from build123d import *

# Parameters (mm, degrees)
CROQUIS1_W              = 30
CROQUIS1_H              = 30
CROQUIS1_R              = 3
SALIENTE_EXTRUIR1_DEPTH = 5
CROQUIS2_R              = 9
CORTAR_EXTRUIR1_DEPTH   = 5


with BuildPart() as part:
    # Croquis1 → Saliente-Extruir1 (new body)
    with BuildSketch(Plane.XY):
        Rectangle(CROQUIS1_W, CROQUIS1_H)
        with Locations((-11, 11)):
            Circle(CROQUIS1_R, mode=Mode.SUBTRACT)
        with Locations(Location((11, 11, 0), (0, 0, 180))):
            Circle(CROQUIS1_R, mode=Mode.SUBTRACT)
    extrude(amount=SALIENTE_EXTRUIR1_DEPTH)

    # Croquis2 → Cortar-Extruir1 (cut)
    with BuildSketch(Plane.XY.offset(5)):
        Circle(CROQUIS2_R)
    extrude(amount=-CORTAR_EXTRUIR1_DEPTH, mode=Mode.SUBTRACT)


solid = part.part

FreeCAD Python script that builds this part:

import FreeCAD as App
import Part
import Sketcher
Q = App.Units.Quantity

doc = App.newDocument("Part")
body = doc.addObject("PartDesign::Body", "Body")

# Sketch on XY plane
sketch1 = body.newObject("Sketcher::SketchObject", "Sketch")
sketch1.AttachmentSupport = (doc.getObject("XY_Plane"), [""])
sketch1.MapMode = "FlatFace"
sketch1.addGeometry(Part.LineSegment(App.Vector(-15, 15, 0), App.Vector(-15, -15, 0)), False)
sketch1.addGeometry(Part.LineSegment(App.Vector(-15, -15, 0), App.Vector(15, -15, 0)), False)
sketch1.addGeometry(Part.LineSegment(App.Vector(15, -15, 0), App.Vector(15, 15, 0)), False)
sketch1.addGeometry(Part.LineSegment(App.Vector(15, 15, 0), App.Vector(-15, 15, 0)), False)
sketch1.addGeometry(Part.Circle(App.Vector(-11, 11, 0), App.Vector(0, 0, 1), 3), False)
sketch1.addGeometry(Part.Circle(App.Vector(11, 11, 0), App.Vector(0, 0, 1), 3), False)
sketch1.addConstraint(Sketcher.Constraint("Coincident", 0, 2, 1, 1))
sketch1.addConstraint(Sketcher.Constraint("Coincident", 1, 2, 2, 1))
sketch1.addConstraint(Sketcher.Constraint("Coincident", 2, 2, 3, 1))
sketch1.addConstraint(Sketcher.Constraint("Coincident", 3, 2, 0, 1))
sketch1.addConstraint(Sketcher.Constraint("Vertical", 0))
sketch1.addConstraint(Sketcher.Constraint("Horizontal", 1))
sketch1.addConstraint(Sketcher.Constraint("Vertical", 2))
sketch1.addConstraint(Sketcher.Constraint("Horizontal", 3))
sketch1.addConstraint(Sketcher.Constraint("Equal", 4, 5))
sketch1.addConstraint(Sketcher.Constraint("Symmetric", 0, 2, 2, 2, -1, 1))
sketch1.addConstraint(Sketcher.Constraint("Symmetric", 4, 3, 5, 3, -2))
sketch1.addConstraint(Sketcher.Constraint("Equal", 3, 0))
sketch1.addConstraint(Sketcher.Constraint("Diameter", 4, Q("6 mm")))
sketch1.addConstraint(Sketcher.Constraint("DistanceX", 1, 1, 1, 2, Q("30 mm")))
sketch1.addConstraint(Sketcher.Constraint("DistanceX", 4, 3, -1, 1, Q("11 mm")))
sketch1.addConstraint(Sketcher.Constraint("DistanceY", -1, 1, 4, 3, Q("11 mm")))
pad1 = body.newObject("PartDesign::Pad", "Pad")
pad1.Profile = sketch1
pad1.Length = 5

# Sketch on XY plane
sketch2 = body.newObject("Sketcher::SketchObject", "Sketch001")
sketch2.AttachmentSupport = (doc.getObject("XY_Plane"), [""])
sketch2.MapMode = "FlatFace"
sketch2.AttachmentOffset = App.Placement(App.Vector(0, 0, 5), App.Rotation())
sketch2.addGeometry(Part.Circle(App.Vector(0, 0, 0), App.Vector(0, 0, 1), 9), False)
sketch2.addConstraint(Sketcher.Constraint("Coincident", 0, 3, -1, 1))
sketch2.addConstraint(Sketcher.Constraint("Diameter", 0, Q("18 mm")))
pocket1 = body.newObject("PartDesign::Pocket", "Pocket")
pocket1.Profile = sketch2
pocket1.Length = 5

doc.recompute()
